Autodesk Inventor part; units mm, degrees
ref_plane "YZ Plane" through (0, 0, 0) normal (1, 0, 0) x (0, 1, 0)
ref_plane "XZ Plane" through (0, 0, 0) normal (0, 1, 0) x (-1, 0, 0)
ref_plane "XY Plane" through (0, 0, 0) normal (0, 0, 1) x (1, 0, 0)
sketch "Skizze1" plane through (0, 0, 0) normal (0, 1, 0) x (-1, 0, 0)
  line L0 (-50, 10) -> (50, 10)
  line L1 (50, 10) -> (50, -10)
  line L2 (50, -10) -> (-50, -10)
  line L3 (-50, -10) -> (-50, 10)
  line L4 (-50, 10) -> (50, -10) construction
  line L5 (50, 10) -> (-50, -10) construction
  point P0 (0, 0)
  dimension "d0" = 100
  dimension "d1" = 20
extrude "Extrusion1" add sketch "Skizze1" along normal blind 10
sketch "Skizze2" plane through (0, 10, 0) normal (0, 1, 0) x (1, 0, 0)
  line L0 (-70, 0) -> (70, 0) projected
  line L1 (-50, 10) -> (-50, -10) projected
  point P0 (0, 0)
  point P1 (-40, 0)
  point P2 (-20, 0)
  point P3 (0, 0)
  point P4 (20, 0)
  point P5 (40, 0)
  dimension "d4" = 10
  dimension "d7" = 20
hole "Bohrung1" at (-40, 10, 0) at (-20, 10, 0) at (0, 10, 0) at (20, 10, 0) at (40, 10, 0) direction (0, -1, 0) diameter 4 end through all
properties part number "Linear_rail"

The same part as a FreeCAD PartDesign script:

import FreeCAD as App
import Part
import Sketcher


def add_polygon(sketch, points):
    """Adds a closed chain of lines whose ends are joined by coincident constraints."""
    first, n = sketch.GeometryCount, len(points)
    for a, b in zip(points, points[1:] + points[:1]):
        sketch.addGeometry(Part.LineSegment(App.Vector(*a, 0), App.Vector(*b, 0)), False)
    for i in range(n):
        sketch.addConstraint(Sketcher.Constraint("Coincident", first + i, 2, first + (i + 1) % n, 1))

doc = App.newDocument("Part")
body = doc.addObject("PartDesign::Body", "Body")

sketch1 = body.newObject("Sketcher::SketchObject", "Sketch")
sketch1.AttachmentSupport = (doc.getObject("XZ_Plane"), [""])
sketch1.MapMode = "FlatFace"
add_polygon(sketch1, [(-50, 10), (50, 10), (50, -10), (-50, -10)])
sketch1.addConstraint([
    Sketcher.Constraint("Horizontal", 0),
    Sketcher.Constraint("Vertical", 1),
    Sketcher.Constraint("Horizontal", 2),
    Sketcher.Constraint("Vertical", 3),
    Sketcher.Constraint("Symmetric", 0, 2, 2, 2, -1, 1),
    Sketcher.Constraint("DistanceX", 0, 1, 0, 2, 100.0),
    Sketcher.Constraint("DistanceY", 1, 2, 1, 1, 20.0),
])
pad1 = body.newObject("PartDesign::Pad", "Pad")
pad1.Profile = sketch1
pad1.Length = 10
pad1.Reversed = True

sketch2 = body.newObject("Sketcher::SketchObject", "Sketch001")
sketch2.AttachmentSupport = (doc.getObject("XZ_Plane"), [""])
sketch2.MapMode = "FlatFace"
sketch2.AttachmentOffset = App.Placement(App.Vector(0, 0, -10), App.Rotation())
sketch2.addGeometry([
    Part.Circle(App.Vector(-40, 0, 0), App.Vector(0, 0, 1), 2),
    Part.Circle(App.Vector(-20, 0, 0), App.Vector(0, 0, 1), 2),
    Part.Circle(App.Vector(0, 0, 0), App.Vector(0, 0, 1), 2),
    Part.Circle(App.Vector(20, 0, 0), App.Vector(0, 0, 1), 2),
    Part.Circle(App.Vector(40, 0, 0), App.Vector(0, 0, 1), 2),
], False)
sketch2.addConstraint([
    Sketcher.Constraint("Coincident", 2, 3, -1, 1),
    Sketcher.Constraint("Equal", 0, 1),
    Sketcher.Constraint("Equal", 1, 2),
    Sketcher.Constraint("Equal", 2, 3),
    Sketcher.Constraint("Equal", 3, 4),
    Sketcher.Constraint("Symmetric", 1, 3, 3, 3, -1, 1),
    Sketcher.Constraint("Symmetric", 0, 3, 4, 3, -1, 1),
    Sketcher.Constraint("PointOnObject", 0, 3, -1),
    Sketcher.Constraint("PointOnObject", 1, 3, -1),
    Sketcher.Constraint("Diameter", 0, 4.0),
    Sketcher.Constraint("DistanceX", 0, 3, -1, 1, 40.0),
    Sketcher.Constraint("DistanceX", 1, 3, -1, 1, 20.0),
])
doc.recompute()
hole = body.newObject("PartDesign::Hole", "Hole")
hole.Profile = sketch2
hole.ThreadType = "None"
hole.Diameter = 4
hole.DepthType = "ThroughAll"
hole.Reversed = True

doc.recompute()
